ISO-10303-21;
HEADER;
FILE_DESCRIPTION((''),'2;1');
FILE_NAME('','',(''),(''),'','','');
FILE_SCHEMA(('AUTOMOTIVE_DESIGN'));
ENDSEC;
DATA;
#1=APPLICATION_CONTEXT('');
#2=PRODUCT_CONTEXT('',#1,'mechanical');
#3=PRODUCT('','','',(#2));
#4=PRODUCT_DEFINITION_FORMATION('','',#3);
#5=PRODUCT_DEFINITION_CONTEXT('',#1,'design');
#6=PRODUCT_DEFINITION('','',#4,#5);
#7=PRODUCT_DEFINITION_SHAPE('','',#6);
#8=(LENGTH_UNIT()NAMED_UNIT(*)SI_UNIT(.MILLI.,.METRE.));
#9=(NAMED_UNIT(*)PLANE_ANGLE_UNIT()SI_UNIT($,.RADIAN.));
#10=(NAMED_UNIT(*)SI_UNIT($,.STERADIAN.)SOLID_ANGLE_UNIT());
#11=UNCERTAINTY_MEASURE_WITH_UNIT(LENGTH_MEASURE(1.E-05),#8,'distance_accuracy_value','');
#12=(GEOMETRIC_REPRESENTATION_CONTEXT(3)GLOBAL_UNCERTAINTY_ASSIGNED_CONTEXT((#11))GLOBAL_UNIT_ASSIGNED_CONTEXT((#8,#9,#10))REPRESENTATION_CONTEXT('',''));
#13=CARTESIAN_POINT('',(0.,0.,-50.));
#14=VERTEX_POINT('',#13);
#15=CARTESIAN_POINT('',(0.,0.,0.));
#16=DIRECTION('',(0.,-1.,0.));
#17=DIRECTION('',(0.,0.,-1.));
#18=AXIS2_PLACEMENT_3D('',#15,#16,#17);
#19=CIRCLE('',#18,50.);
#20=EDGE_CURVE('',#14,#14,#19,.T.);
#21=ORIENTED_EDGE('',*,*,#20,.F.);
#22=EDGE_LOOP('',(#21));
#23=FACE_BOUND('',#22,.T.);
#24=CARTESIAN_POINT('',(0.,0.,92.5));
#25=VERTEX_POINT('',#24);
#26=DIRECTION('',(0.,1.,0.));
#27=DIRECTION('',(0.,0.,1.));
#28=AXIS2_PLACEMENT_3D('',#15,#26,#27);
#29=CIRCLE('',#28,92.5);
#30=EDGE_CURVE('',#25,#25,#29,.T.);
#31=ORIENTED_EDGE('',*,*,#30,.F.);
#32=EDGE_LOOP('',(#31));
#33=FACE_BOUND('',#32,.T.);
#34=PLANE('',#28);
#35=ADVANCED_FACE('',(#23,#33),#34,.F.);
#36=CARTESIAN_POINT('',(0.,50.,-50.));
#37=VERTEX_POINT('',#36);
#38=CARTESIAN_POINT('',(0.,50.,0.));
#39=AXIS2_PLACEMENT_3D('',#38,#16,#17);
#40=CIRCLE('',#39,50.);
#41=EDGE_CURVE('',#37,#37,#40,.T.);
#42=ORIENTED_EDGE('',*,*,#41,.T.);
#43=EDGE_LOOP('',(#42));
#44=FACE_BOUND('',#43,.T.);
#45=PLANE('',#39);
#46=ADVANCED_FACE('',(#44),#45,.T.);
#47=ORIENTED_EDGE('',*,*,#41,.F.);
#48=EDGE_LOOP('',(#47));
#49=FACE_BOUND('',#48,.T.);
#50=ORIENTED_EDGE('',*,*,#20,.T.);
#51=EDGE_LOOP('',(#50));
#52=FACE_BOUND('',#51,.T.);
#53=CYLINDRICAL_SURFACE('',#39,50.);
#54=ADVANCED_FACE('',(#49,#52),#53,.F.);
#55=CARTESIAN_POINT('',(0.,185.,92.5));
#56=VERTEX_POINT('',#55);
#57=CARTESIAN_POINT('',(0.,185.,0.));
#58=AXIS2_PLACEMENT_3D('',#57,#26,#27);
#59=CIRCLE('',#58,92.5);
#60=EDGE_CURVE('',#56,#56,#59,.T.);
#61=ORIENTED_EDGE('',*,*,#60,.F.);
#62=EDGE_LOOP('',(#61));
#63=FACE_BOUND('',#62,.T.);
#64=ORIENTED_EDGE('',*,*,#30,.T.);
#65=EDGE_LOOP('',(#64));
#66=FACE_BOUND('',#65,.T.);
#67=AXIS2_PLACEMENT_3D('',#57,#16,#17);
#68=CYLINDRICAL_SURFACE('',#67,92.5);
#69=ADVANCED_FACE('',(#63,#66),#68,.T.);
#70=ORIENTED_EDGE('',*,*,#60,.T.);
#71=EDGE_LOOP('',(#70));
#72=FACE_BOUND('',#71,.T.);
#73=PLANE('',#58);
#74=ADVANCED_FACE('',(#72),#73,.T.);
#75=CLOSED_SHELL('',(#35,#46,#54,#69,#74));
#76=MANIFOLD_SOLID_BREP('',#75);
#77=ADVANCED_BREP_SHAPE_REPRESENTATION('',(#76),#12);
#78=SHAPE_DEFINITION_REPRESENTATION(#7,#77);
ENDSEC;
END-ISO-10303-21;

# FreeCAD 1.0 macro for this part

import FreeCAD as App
import Part
import Sketcher
Q = App.Units.Quantity

doc = App.newDocument("Part")
body = doc.addObject("PartDesign::Body", "Body")

sketch1 = doc.addObject("Sketcher::SketchObject", "Sketch")
body.addObject(sketch1)
sketch1.AttachmentSupport = (doc.XZ_Plane, [""])
sketch1.MapMode = "FlatFace"
sketch1.addGeometry(Part.Circle(App.Vector(0, 0, 0), App.Vector(0, 0, 1), 92), False)
sketch1.addConstraint([
    Sketcher.Constraint("Coincident", 0, 3, -1, 1),
    Sketcher.Constraint("Diameter", 0, Q("185 mm")),
])
pad1 = doc.addObject("PartDesign::Pad", "Pad")
body.addObject(pad1)
pad1.Profile = sketch1
pad1.Length = 185
pad1.Reversed = True

sketch2 = doc.addObject("Sketcher::SketchObject", "Sketch001")
body.addObject(sketch2)
sketch2.AttachmentSupport = (doc.XZ_Plane, [""])
sketch2.MapMode = "FlatFace"
sketch2.addGeometry(Part.Circle(App.Vector(0, 0, 0), App.Vector(0, 0, 1), 50), False)
sketch2.addConstraint([
    Sketcher.Constraint("Coincident", 0, 3, -1, 1),
    Sketcher.Constraint("Diameter", 0, Q("100 mm")),
])
pocket1 = doc.addObject("PartDesign::Pocket", "Pocket")
body.addObject(pocket1)
pocket1.Profile = sketch2
pocket1.Length = 50

doc.recompute()
